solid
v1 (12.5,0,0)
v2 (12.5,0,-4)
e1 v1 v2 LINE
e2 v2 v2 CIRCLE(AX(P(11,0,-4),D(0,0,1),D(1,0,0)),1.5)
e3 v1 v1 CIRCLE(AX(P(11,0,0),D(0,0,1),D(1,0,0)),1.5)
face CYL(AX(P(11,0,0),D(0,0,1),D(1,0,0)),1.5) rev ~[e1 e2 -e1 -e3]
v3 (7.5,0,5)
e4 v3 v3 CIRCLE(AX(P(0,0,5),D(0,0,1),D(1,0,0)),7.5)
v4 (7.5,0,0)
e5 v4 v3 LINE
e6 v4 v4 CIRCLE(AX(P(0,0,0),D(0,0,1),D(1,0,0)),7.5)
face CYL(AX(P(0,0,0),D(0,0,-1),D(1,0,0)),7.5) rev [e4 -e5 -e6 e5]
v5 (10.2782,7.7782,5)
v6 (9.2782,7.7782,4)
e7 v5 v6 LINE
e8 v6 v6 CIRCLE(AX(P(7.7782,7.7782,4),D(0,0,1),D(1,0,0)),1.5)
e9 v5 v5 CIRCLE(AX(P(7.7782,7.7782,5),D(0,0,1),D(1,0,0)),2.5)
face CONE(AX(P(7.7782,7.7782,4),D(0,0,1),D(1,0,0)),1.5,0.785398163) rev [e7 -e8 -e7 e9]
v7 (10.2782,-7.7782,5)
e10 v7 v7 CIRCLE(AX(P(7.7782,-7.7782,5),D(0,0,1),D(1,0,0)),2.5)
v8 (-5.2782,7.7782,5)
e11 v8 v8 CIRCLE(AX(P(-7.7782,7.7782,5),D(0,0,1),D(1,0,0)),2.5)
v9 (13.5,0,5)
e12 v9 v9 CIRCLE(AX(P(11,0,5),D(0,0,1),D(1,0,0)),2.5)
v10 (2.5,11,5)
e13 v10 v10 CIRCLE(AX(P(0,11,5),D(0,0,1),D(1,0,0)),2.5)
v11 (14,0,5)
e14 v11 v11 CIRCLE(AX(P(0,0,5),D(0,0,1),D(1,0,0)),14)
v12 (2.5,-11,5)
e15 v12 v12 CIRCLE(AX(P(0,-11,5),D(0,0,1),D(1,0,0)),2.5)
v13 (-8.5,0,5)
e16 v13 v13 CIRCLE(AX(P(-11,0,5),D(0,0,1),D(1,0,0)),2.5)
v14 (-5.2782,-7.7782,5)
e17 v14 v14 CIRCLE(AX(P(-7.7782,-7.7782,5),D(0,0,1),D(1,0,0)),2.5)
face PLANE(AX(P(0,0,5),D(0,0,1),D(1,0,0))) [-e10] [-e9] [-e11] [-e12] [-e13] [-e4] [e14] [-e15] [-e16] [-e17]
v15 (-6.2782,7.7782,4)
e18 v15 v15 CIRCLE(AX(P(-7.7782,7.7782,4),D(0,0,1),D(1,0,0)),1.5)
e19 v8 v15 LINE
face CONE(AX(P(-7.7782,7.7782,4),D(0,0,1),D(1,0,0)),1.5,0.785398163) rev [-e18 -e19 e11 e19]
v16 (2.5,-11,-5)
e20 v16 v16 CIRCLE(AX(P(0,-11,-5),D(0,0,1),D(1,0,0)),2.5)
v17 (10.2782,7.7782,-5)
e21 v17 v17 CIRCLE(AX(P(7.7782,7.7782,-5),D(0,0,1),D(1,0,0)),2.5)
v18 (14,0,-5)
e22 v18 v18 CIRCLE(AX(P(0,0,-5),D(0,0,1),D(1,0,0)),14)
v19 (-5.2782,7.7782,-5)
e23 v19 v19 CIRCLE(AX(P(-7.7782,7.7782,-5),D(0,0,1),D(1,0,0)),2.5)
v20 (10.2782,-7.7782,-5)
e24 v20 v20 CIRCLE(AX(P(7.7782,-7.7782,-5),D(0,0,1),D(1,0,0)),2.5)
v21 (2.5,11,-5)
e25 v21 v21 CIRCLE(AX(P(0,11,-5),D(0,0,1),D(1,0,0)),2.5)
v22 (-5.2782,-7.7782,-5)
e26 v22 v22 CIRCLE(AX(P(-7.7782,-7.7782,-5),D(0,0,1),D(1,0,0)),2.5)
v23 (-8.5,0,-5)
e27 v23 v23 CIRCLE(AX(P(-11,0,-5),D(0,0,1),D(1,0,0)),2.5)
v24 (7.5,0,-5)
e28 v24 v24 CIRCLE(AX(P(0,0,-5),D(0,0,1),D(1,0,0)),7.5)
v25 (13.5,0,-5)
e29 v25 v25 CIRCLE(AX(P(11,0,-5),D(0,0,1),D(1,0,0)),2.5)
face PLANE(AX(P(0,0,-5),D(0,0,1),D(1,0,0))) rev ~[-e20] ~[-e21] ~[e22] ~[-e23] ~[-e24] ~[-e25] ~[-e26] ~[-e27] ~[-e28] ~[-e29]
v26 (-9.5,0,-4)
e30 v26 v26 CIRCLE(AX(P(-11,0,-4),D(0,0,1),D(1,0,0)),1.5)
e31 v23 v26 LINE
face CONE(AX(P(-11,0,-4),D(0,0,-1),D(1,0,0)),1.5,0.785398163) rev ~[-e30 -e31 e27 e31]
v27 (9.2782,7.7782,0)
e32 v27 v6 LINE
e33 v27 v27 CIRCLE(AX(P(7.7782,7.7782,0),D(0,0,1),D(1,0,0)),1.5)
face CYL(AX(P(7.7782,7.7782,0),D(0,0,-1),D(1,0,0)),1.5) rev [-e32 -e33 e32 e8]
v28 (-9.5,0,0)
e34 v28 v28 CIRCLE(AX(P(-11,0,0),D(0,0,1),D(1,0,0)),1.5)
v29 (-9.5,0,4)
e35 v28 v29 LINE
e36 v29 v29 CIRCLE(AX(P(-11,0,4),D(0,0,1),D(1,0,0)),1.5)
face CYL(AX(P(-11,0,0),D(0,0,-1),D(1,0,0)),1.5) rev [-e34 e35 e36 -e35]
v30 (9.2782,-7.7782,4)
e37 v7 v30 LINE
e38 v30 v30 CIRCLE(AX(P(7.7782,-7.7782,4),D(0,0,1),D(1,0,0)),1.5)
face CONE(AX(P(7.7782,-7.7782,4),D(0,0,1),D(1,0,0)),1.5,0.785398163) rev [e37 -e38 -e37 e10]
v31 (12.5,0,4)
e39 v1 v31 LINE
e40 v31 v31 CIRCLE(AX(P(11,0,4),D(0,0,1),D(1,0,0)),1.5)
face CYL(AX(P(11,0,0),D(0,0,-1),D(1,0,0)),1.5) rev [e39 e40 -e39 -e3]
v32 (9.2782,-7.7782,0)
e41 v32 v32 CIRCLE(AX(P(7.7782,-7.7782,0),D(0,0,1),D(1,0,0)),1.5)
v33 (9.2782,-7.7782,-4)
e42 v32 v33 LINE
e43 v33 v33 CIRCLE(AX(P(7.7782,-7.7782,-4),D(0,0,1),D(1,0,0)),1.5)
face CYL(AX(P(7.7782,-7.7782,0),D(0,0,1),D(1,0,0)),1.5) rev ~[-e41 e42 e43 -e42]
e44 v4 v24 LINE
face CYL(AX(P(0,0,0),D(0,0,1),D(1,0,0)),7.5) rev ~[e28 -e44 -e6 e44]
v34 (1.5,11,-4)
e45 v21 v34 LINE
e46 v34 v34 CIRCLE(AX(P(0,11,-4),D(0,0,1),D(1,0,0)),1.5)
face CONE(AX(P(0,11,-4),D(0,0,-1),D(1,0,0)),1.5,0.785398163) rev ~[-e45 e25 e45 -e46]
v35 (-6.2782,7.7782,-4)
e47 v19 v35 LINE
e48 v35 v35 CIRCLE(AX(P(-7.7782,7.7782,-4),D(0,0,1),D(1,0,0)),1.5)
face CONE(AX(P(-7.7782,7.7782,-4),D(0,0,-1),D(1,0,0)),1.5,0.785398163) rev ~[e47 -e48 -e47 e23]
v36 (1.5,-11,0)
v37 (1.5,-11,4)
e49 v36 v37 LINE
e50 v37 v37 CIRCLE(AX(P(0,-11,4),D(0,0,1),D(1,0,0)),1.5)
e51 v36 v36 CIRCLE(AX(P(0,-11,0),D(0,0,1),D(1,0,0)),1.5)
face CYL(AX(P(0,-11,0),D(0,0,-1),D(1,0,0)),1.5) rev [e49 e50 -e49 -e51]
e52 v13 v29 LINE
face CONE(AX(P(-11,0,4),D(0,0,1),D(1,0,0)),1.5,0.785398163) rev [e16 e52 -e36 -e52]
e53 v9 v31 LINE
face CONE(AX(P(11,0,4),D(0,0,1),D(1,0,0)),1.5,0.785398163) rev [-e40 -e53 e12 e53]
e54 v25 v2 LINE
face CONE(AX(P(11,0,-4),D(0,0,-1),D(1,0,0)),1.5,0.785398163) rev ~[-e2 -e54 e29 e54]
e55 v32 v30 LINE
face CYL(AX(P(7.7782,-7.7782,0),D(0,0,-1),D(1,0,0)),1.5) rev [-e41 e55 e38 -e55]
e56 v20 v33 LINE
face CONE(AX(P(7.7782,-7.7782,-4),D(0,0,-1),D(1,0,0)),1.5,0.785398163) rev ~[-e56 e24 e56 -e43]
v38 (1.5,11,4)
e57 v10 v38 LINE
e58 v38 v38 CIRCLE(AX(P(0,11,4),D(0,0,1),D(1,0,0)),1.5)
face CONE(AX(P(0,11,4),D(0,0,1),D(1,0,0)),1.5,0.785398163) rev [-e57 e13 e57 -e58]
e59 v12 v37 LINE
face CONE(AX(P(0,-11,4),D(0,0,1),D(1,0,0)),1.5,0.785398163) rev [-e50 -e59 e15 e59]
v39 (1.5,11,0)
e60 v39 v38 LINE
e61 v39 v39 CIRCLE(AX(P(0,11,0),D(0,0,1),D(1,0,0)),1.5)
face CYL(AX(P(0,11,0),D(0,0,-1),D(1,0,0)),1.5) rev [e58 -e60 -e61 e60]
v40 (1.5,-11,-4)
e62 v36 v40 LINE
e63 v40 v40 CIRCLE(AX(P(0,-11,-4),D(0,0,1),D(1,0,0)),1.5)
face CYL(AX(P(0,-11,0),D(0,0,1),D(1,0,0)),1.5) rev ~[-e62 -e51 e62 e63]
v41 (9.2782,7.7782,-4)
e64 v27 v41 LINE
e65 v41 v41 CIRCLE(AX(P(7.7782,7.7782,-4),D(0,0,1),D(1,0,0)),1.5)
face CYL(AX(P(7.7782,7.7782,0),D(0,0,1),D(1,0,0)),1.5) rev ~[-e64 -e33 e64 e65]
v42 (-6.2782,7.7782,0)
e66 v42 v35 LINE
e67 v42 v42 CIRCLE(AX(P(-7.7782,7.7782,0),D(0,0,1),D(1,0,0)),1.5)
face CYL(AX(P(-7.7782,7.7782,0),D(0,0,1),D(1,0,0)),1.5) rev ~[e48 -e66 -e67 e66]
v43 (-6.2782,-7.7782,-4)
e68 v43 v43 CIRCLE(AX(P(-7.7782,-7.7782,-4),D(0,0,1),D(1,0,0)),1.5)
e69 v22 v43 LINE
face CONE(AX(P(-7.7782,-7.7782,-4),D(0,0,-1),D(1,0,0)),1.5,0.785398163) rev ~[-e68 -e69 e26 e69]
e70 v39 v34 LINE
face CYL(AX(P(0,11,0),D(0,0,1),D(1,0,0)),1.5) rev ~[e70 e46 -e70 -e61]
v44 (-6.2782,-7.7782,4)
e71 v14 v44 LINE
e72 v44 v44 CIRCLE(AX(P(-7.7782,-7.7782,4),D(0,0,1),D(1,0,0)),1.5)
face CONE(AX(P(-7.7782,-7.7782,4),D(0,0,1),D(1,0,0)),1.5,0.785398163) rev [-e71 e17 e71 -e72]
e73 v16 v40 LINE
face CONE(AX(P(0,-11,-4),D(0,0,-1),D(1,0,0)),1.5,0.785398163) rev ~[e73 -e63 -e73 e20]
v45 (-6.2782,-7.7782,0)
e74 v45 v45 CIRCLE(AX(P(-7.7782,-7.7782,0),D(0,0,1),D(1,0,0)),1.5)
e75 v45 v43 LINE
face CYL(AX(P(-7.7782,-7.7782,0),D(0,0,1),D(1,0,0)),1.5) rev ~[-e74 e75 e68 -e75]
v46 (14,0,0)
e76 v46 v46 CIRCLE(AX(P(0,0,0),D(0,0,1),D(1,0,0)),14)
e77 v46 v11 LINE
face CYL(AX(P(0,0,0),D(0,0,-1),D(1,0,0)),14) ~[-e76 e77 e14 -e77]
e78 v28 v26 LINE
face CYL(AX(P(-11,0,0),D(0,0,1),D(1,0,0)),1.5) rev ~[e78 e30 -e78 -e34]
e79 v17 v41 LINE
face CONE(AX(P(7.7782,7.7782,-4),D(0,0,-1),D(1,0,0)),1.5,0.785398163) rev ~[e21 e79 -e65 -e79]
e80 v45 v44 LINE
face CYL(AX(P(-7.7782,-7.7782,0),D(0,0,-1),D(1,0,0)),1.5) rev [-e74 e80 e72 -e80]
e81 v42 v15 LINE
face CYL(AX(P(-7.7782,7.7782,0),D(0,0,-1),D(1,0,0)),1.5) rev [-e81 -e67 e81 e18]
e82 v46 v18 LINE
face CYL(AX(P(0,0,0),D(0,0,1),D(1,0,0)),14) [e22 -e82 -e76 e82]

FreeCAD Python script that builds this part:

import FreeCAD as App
import Part
import Sketcher
from FreeCAD import Vector


def edges_at(feature, points):
    """Names of the edges that pass closest to the given points."""
    edges = feature.Shape.Edges
    near = lambda p: min(range(len(edges)), key=lambda i: edges[i].distToShape(Part.Vertex(*p))[0])
    return sorted({f"Edge{near(p) + 1}" for p in points})

doc = App.newDocument("Part")
body = doc.addObject("PartDesign::Body", "Body")

sketch1 = body.newObject("Sketcher::SketchObject", "Sketch")
sketch1.AttachmentSupport = (doc.getObject("XY_Plane"), [""])
sketch1.MapMode = "FlatFace"
sketch1.addGeometry(Part.Circle(Vector(0, 0, 0), Vector(0, 0, 1), 14), False)
sketch1.addGeometry(Part.Circle(Vector(-7.8, -7.8, 0), Vector(0, 0, 1), 1.5), False)
sketch1.addGeometry(Part.Circle(Vector(0, -11, 0), Vector(0, 0, 1), 1.5), False)
sketch1.addGeometry(Part.Circle(Vector(7.8, -7.8, 0), Vector(0, 0, 1), 1.5), False)
sketch1.addGeometry(Part.Circle(Vector(-11, 0, 0), Vector(0, 0, 1), 1.5), False)
sketch1.addGeometry(Part.Circle(Vector(-7.8, 7.8, 0), Vector(0, 0, 1), 1.5), False)
sketch1.addGeometry(Part.Circle(Vector(0, 0, 0), Vector(0, 0, 1), 7.5), False)
sketch1.addGeometry(Part.Circle(Vector(11, 0, 0), Vector(0, 0, 1), 1.5), False)
sketch1.addGeometry(Part.Circle(Vector(0, 11, 0), Vector(0, 0, 1), 1.5), False)
sketch1.addGeometry(Part.Circle(Vector(7.8, 7.8, 0), Vector(0, 0, 1), 1.5), False)
sketch1.addConstraint(Sketcher.Constraint("Coincident", 0, 3, -1, 1))
sketch1.addConstraint(Sketcher.Constraint("Coincident", 6, 3, -1, 1))
sketch1.addConstraint(Sketcher.Constraint("Equal", 1, 2))
sketch1.addConstraint(Sketcher.Constraint("Equal", 2, 3))
sketch1.addConstraint(Sketcher.Constraint("Equal", 3, 4))
sketch1.addConstraint(Sketcher.Constraint("Equal", 4, 5))
sketch1.addConstraint(Sketcher.Constraint("Equal", 5, 7))
sketch1.addConstraint(Sketcher.Constraint("Equal", 7, 8))
sketch1.addConstraint(Sketcher.Constraint("Equal", 8, 9))
sketch1.addConstraint(Sketcher.Constraint("Symmetric", 3, 3, 5, 3, -1, 1))
sketch1.addConstraint(Sketcher.Constraint("Symmetric", 4, 3, 7, 3, -1, 1))
sketch1.addConstraint(Sketcher.Constraint("Symmetric", 2, 3, 8, 3, -1, 1))
sketch1.addConstraint(Sketcher.Constraint("Symmetric", 1, 3, 9, 3, -1, 1))
sketch1.addConstraint(Sketcher.Constraint("Symmetric", 1, 3, 3, 3, -2))
sketch1.addConstraint(Sketcher.Constraint("PointOnObject", 2, 3, -2))
sketch1.addConstraint(Sketcher.Constraint("PointOnObject", 4, 3, -1))
sketch1.addConstraint(Sketcher.Constraint("Diameter", 0, 28.0))
sketch1.addConstraint(Sketcher.Constraint("Diameter", 1, 3.0))
sketch1.addConstraint(Sketcher.Constraint("Diameter", 6, 15.0))
sketch1.addConstraint(Sketcher.Constraint("DistanceY", 2, 3, -1, 1, 11.0))
sketch1.addConstraint(Sketcher.Constraint("DistanceX", 4, 3, -1, 1, 11.0))
sketch1.addConstraint(Sketcher.Constraint("DistanceX", 1, 3, -1, 1, 7.7782))
sketch1.addConstraint(Sketcher.Constraint("DistanceY", 1, 3, -1, 1, 7.7782))
pad1 = body.newObject("PartDesign::Pad", "Pad")
pad1.Profile = sketch1
pad1.Length = 10
pad1.Midplane = True
doc.recompute()

chamfer = body.newObject("PartDesign::Chamfer", "Chamfer")
chamfer.Base = (pad1, edges_at(pad1, [
    (-9.278, 7.778, 5),
    (-1.5, 11, 5),
    (-9.278, -7.778, 5),
    (-12.5, 0, 5),
    (-12.5, 0, -5),
    (-9.278, -7.778, -5),
    (-1.5, 11, -5),
    (-9.278, 7.778, -5),
    (-1.5, -11, -5),
    (6.278, -7.778, -5),
    (9.5, 0, -5),
    (6.278, 7.778, -5),
    (6.278, 7.778, 5),
    (9.5, 0, 5),
    (6.278, -7.778, 5),
    (-1.5, -11, 5),
]))
chamfer.Size = 1

doc.recompute()
